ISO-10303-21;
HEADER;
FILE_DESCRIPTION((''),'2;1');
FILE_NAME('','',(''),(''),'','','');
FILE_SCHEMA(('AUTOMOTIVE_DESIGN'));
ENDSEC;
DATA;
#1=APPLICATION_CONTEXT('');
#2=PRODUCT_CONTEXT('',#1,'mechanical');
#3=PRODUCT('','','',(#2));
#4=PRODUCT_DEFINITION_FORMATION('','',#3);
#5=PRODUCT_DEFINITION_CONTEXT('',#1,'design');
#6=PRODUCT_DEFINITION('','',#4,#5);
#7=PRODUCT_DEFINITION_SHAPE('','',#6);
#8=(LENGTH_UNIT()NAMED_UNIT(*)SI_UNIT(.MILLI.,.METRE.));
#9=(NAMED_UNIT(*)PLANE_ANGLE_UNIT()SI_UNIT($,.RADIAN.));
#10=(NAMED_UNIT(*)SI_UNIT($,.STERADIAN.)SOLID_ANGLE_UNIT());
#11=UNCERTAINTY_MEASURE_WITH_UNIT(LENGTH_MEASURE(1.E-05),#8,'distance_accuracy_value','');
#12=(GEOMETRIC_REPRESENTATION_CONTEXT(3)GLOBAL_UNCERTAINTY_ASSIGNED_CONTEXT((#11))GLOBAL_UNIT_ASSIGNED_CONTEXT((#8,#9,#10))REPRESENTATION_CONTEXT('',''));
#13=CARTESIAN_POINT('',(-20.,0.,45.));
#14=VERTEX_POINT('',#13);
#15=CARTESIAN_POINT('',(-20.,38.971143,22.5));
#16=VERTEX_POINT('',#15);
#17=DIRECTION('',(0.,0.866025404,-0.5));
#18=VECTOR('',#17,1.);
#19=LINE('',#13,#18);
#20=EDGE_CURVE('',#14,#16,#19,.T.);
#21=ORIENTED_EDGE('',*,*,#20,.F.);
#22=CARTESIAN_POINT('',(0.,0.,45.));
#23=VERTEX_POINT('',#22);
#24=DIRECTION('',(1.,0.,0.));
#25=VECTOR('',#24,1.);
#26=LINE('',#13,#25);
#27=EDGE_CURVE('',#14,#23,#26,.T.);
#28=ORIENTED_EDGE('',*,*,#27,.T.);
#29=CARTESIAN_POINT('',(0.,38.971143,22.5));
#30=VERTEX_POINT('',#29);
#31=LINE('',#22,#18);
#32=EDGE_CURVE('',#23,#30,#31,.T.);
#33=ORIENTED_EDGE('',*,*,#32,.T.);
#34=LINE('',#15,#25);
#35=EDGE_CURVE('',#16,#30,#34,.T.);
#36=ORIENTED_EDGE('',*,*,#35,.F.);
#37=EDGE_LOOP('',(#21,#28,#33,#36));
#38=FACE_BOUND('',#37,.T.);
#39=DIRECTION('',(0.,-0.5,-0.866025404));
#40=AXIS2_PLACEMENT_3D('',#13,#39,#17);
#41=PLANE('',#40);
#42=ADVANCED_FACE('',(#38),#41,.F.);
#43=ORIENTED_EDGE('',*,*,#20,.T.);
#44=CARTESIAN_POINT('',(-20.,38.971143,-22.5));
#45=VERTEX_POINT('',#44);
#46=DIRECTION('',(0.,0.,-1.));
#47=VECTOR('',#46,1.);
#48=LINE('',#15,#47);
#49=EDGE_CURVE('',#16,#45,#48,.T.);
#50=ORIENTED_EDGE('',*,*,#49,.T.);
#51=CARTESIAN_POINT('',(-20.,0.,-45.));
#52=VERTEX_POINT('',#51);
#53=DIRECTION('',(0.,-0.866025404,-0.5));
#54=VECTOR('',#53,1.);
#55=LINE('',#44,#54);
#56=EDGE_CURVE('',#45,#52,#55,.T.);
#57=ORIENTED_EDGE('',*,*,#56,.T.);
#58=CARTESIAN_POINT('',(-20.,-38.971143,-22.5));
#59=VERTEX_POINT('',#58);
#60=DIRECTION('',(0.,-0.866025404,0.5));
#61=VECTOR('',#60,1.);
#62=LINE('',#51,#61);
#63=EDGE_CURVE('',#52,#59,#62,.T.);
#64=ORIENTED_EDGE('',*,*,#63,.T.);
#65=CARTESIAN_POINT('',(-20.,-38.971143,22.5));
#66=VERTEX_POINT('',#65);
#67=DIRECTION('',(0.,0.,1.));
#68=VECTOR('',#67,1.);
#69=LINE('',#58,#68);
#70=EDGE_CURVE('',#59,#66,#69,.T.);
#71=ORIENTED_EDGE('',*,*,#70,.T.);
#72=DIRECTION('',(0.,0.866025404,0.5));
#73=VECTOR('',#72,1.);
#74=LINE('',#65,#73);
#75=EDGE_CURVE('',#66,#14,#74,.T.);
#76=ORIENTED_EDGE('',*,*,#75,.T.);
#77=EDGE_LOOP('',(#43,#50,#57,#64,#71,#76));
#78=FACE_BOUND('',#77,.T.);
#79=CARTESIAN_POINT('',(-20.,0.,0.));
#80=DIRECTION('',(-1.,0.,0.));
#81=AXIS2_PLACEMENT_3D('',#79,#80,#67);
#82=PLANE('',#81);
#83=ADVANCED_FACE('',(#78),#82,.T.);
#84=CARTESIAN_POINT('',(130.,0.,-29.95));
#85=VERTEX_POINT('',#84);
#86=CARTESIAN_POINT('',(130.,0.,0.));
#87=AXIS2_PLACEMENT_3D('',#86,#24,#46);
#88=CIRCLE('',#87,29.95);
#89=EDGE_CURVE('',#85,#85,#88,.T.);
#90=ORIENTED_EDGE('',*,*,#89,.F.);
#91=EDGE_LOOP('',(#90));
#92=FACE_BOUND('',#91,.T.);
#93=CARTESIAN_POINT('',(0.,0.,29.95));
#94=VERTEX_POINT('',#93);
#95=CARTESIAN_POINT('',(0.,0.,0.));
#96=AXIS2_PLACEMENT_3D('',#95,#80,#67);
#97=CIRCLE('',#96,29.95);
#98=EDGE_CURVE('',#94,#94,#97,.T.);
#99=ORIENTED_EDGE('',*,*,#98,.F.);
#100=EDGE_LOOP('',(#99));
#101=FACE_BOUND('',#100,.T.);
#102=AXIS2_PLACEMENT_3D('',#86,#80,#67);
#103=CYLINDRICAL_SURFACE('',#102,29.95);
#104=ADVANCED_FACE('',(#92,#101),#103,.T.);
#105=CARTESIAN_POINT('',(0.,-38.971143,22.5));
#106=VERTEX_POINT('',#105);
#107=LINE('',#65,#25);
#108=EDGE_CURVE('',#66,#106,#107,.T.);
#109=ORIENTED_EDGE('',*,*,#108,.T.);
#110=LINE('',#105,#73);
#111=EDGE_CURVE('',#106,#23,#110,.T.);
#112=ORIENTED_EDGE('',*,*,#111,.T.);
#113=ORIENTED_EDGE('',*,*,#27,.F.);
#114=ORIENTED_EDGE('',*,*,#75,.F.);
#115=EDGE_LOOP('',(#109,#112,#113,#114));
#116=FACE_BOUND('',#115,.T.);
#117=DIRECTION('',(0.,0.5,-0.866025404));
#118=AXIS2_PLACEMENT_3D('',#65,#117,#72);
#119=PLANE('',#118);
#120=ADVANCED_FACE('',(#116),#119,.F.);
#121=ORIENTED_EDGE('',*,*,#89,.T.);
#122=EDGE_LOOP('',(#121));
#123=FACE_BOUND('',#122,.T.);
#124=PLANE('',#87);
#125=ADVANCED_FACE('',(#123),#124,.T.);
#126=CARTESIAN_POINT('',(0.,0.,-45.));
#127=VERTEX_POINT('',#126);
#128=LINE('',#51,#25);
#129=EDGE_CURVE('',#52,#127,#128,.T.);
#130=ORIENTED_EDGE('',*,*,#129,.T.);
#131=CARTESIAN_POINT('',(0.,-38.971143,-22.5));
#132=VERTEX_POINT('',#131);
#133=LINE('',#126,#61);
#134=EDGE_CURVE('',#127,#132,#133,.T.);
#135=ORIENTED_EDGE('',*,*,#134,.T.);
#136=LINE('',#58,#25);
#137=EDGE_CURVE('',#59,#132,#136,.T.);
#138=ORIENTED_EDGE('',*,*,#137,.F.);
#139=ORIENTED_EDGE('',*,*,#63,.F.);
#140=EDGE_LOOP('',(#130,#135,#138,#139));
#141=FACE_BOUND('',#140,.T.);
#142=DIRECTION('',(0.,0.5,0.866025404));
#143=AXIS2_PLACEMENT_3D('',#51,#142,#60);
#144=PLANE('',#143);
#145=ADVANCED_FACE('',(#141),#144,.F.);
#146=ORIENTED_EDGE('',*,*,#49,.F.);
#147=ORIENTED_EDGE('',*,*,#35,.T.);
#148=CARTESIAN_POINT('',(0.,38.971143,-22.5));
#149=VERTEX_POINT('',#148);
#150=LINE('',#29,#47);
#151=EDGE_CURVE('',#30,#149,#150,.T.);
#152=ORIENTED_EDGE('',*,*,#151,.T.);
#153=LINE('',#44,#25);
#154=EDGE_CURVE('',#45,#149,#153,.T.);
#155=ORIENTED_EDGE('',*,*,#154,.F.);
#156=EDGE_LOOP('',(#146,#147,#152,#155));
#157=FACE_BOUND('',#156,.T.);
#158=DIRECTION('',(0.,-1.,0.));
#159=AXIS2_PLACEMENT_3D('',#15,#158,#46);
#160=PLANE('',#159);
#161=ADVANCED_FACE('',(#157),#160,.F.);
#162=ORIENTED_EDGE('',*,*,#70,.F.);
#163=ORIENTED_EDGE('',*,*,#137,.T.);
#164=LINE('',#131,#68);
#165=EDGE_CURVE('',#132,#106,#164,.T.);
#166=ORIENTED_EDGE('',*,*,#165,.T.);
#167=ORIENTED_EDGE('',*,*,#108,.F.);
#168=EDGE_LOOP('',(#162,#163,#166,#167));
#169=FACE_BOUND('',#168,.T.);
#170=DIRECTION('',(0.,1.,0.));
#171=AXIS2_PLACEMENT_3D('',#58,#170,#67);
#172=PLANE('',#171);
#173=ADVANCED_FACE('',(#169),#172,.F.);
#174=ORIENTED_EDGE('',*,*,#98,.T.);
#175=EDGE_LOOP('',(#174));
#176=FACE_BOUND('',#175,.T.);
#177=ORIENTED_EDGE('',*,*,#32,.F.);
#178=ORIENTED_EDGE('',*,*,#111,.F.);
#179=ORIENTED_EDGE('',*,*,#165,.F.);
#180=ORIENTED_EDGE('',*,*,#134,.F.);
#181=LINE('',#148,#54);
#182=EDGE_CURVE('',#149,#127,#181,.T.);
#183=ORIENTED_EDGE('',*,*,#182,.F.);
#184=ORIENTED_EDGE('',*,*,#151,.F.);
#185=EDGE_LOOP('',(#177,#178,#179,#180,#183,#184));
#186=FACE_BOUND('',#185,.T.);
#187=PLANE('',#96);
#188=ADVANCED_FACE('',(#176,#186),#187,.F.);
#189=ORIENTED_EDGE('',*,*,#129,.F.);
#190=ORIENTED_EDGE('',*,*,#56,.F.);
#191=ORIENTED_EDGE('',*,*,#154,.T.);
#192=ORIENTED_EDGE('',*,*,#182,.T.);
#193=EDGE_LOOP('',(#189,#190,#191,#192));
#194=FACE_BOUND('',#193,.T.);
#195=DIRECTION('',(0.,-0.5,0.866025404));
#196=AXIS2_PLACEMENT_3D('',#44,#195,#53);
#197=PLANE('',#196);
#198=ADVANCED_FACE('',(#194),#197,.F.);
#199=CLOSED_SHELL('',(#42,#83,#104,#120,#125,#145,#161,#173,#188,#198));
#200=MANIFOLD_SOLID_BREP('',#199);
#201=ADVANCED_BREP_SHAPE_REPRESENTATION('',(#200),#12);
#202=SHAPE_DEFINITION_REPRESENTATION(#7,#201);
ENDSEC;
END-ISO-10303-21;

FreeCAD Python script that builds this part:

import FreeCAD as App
import Part
import Sketcher
Q = App.Units.Quantity

doc = App.newDocument("Part")
body = doc.addObject("PartDesign::Body", "Body")

sketch1 = doc.addObject("Sketcher::SketchObject", "Sketch")
body.addObject(sketch1)
sketch1.AttachmentSupport = (doc.YZ_Plane, [""])
sketch1.MapMode = "FlatFace"
sketch1.addGeometry(Part.Circle(App.Vector(0, 0, 0), App.Vector(0, 0, 1), 29.95), False)
sketch1.addConstraint([
    Sketcher.Constraint("Coincident", 0, 3, -1, 1),
    Sketcher.Constraint("Diameter", 0, Q("59.9 mm")),
])
pad1 = doc.addObject("PartDesign::Pad", "Pad")
body.addObject(pad1)
pad1.Profile = sketch1
pad1.Length = 130

sketch2 = doc.addObject("Sketcher::SketchObject", "Sketch001")
body.addObject(sketch2)
sketch2.AttachmentSupport = (doc.YZ_Plane, [""])
sketch2.MapMode = "FlatFace"
sketch2.addGeometry([
    Part.LineSegment(App.Vector(0, 45, 0), App.Vector(38.971143, 22.5, 0)),
    Part.LineSegment(App.Vector(38.971143, 22.5, 0), App.Vector(38.971143, -22.5, 0)),
    Part.LineSegment(App.Vector(38.971143, -22.5, 0), App.Vector(0, -45, 0)),
    Part.LineSegment(App.Vector(0, -45, 0), App.Vector(-38.971143, -22.5, 0)),
    Part.LineSegment(App.Vector(-38.971143, -22.5, 0), App.Vector(-38.971143, 22.5, 0)),
    Part.LineSegment(App.Vector(-38.971143, 22.5, 0), App.Vector(0, 45, 0)),
], False)
sketch2.addConstraint([
    Sketcher.Constraint("Coincident", 0, 2, 1, 1),
    Sketcher.Constraint("Coincident", 1, 2, 2, 1),
    Sketcher.Constraint("Coincident", 2, 2, 3, 1),
    Sketcher.Constraint("Coincident", 3, 2, 4, 1),
    Sketcher.Constraint("Coincident", 4, 2, 5, 1),
    Sketcher.Constraint("Coincident", 5, 2, 0, 1),
    Sketcher.Constraint("Vertical", 1),
    Sketcher.Constraint("Vertical", 4),
    Sketcher.Constraint("Symmetric", 0, 2, 3, 2, -1, 1),
    Sketcher.Constraint("Symmetric", 2, 2, 5, 2, -1, 1),
    Sketcher.Constraint("PointOnObject", 2, 2, -2),
    Sketcher.Constraint("Parallel", 2, 5),
    Sketcher.Constraint("Horizontal", 1, 2, 3, 2),
    Sketcher.Constraint("DistanceY", 1, 2, 1, 1, Q("45 mm")),
    Sketcher.Constraint("Angle", 0, Q("-30 deg")),
    Sketcher.Constraint("Distance", 0, Q("45 mm")),
])
pad2 = doc.addObject("PartDesign::Pad", "Pad001")
body.addObject(pad2)
pad2.Profile = sketch2
pad2.Length = 20
pad2.Reversed = True

doc.recompute()
